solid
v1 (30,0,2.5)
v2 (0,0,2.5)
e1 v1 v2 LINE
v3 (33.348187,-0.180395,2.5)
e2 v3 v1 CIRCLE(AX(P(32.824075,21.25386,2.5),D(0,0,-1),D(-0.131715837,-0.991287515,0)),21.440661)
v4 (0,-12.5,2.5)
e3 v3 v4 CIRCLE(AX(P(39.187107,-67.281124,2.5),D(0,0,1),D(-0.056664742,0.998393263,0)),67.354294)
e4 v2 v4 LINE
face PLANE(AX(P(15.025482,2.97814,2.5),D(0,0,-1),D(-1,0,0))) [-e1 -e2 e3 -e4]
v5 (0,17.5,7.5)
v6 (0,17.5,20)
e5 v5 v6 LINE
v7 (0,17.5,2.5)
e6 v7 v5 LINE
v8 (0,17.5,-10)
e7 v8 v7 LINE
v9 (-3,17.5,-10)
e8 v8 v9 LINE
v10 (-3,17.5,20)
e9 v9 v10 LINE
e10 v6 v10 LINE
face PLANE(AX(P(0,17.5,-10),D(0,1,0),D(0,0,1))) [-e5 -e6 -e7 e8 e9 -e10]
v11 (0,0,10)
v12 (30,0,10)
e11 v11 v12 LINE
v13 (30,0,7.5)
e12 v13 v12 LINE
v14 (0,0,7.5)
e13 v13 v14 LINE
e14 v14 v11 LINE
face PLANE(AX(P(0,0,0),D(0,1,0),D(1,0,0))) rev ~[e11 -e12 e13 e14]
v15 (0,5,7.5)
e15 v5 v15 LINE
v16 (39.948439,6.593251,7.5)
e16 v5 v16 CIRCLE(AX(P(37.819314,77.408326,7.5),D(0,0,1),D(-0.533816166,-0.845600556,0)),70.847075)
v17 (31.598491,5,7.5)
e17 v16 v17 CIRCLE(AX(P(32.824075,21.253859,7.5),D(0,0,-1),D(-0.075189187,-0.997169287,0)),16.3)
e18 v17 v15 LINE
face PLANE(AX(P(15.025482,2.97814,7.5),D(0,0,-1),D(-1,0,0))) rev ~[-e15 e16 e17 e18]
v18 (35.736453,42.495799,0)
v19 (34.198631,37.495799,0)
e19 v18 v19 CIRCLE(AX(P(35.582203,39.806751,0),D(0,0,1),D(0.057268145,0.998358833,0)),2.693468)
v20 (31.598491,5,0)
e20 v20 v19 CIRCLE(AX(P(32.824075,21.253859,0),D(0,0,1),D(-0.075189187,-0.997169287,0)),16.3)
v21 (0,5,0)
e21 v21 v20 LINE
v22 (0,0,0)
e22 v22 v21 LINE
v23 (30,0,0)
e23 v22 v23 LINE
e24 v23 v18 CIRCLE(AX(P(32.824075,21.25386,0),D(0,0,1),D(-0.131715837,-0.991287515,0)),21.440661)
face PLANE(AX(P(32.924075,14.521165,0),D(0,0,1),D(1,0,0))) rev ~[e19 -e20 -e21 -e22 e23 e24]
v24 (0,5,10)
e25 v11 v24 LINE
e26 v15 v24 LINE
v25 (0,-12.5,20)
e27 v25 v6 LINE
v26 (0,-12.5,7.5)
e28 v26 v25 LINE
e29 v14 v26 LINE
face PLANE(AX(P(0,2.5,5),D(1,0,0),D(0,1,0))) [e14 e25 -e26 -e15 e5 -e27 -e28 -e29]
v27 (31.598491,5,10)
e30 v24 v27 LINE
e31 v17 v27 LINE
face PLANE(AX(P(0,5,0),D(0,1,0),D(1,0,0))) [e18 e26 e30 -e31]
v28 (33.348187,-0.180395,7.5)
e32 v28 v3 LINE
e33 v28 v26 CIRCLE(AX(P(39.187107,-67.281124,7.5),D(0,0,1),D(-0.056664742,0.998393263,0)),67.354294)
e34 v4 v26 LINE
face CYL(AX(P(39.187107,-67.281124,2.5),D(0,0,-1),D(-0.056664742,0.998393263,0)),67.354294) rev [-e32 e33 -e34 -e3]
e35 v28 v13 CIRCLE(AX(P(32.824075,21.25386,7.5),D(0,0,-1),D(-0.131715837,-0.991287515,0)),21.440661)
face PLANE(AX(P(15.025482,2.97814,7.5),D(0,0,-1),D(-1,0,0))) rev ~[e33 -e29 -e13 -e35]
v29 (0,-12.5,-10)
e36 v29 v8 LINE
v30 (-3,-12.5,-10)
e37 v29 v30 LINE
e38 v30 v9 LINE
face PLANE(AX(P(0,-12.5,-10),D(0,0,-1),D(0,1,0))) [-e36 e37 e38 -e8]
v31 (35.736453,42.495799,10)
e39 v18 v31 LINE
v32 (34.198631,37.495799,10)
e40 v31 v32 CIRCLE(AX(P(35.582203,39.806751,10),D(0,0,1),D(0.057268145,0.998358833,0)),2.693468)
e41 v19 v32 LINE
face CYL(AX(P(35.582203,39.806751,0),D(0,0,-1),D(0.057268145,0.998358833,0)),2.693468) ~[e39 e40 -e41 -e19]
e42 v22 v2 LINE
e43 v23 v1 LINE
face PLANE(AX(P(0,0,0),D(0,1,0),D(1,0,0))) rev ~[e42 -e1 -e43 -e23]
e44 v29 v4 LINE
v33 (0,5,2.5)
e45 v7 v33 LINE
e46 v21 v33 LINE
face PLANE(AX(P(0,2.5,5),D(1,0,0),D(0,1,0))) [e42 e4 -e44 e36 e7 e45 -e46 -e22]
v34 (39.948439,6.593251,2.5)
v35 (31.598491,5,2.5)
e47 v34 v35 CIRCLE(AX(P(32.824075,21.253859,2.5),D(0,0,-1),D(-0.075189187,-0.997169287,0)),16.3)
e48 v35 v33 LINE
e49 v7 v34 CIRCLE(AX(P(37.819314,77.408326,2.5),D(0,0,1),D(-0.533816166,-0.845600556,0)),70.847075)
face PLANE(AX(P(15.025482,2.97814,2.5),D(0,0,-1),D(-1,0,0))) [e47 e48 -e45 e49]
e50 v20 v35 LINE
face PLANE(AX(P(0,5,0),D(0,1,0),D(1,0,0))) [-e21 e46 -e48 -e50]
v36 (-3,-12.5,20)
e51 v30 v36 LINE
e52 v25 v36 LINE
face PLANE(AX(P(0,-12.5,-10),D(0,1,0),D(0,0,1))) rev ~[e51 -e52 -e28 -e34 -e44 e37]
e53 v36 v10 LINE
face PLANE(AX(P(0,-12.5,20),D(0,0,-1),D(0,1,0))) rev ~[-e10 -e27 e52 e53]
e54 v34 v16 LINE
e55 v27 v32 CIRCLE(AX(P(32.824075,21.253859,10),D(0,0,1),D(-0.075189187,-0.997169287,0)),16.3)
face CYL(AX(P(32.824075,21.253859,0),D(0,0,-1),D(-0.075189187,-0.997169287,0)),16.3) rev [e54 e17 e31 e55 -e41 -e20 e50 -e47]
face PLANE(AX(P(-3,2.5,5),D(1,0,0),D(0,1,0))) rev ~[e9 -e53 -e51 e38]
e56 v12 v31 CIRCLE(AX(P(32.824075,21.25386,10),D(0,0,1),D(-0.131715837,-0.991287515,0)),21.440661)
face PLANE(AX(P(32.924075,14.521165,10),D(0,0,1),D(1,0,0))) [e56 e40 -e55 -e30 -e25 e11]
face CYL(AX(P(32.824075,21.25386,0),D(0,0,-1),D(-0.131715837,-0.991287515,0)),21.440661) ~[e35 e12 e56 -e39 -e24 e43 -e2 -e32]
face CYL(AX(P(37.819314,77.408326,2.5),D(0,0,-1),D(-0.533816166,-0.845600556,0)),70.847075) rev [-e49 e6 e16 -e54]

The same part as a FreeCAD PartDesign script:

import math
import FreeCAD as App
import Part
import Sketcher
from FreeCAD import Vector
Q = App.Units.Quantity

doc = App.newDocument("Part")
body = doc.addObject("PartDesign::Body", "Body")

sketch1 = doc.addObject("Sketcher::SketchObject", "Sketch")
body.addObject(sketch1)
sketch1.AttachmentSupport = (doc.XY_Plane, [""])
sketch1.MapMode = "FlatFace"
sketch1.addGeometry([
    Part.LineSegment(Vector(0, 0, 0), Vector(30, 0, 0)),
    Part.ArcOfCircle(Part.Circle(Vector(32.8, 21.3, 0), Vector(0, 0, 1), 21.4), math.radians(-98), math.radians(82)),
    Part.ArcOfCircle(Part.Circle(Vector(35.6, 39.8, 0), Vector(0, 0, 1), 2.7), math.radians(87), math.radians(239)),
    Part.ArcOfCircle(Part.Circle(Vector(32.8, 21.3, 0), Vector(0, 0, 1), 16.3), math.radians(-94), math.radians(85)),
    Part.LineSegment(Vector(31.6, 5, 0), Vector(0, 5, 0)),
    Part.LineSegment(Vector(0, 5, 0), Vector(0, 0, 0)),
], False)
sketch1.addConstraint([
    Sketcher.Constraint("Coincident", 0, 2, 1, 1),
    Sketcher.Constraint("Coincident", 1, 2, 2, 1),
    Sketcher.Constraint("Coincident", 2, 2, 3, 2),
    Sketcher.Constraint("Coincident", 3, 1, 4, 1),
    Sketcher.Constraint("Coincident", 4, 2, 5, 1),
    Sketcher.Constraint("Coincident", 5, 2, 0, 1),
    Sketcher.Constraint("Horizontal", 0),
    Sketcher.Constraint("Horizontal", 4),
    Sketcher.Constraint("Vertical", 5),
    Sketcher.Constraint("Coincident", 5, 2, -1, 1),
    Sketcher.Constraint("Coincident", 3, 3, 1, 3),
    Sketcher.Constraint("Radius", 3, Q("16.3 mm")),
    Sketcher.Constraint("DistanceX", 0, 1, 0, 2, Q("30 mm")),
    Sketcher.Constraint("DistanceY", 5, 2, 5, 1, Q("5 mm")),
    Sketcher.Constraint("DistanceY", 2, 2, 1, 2, Q("5 mm")),
    Sketcher.Constraint("Radius", 1, Q("21.440661 mm")),
    Sketcher.Constraint("Radius", 2, Q("2.693468 mm")),
    Sketcher.Constraint("DistanceX", 4, 2, 4, 1, Q("31.598491 mm")),
    Sketcher.Constraint("DistanceY", -1, 1, 1, 2, Q("42.495799 mm")),
])
pad1 = doc.addObject("PartDesign::Pad", "Pad")
body.addObject(pad1)
pad1.Profile = sketch1
pad1.Length = 10

sketch2 = doc.addObject("Sketcher::SketchObject", "Sketch001")
body.addObject(sketch2)
sketch2.AttachmentSupport = (doc.YZ_Plane, [""])
sketch2.MapMode = "FlatFace"
sketch2.addGeometry([
    Part.LineSegment(Vector(-12, 20, 0), Vector(-12, -10, 0)),
    Part.LineSegment(Vector(-12, -10, 0), Vector(18, -10, 0)),
    Part.LineSegment(Vector(18, -10, 0), Vector(18, 20, 0)),
    Part.LineSegment(Vector(18, 20, 0), Vector(-12, 20, 0)),
], False)
sketch2.addConstraint([
    Sketcher.Constraint("Coincident", 0, 2, 1, 1),
    Sketcher.Constraint("Coincident", 1, 2, 2, 1),
    Sketcher.Constraint("Coincident", 2, 2, 3, 1),
    Sketcher.Constraint("Coincident", 3, 2, 0, 1),
    Sketcher.Constraint("Vertical", 0),
    Sketcher.Constraint("Horizontal", 1),
    Sketcher.Constraint("Vertical", 2),
    Sketcher.Constraint("Horizontal", 3),
    Sketcher.Constraint("Equal", 3, 0),
    Sketcher.Constraint("DistanceX", 1, 1, 1, 2, Q("30 mm")),
    Sketcher.Constraint("DistanceY", 0, 2, -1, 1, Q("10 mm")),
    Sketcher.Constraint("DistanceX", 0, 2, -1, 1, Q("12.5 mm")),
])
pad2 = doc.addObject("PartDesign::Pad", "Pad001")
body.addObject(pad2)
pad2.Profile = sketch2
pad2.Length = 3
pad2.Reversed = True

sketch3 = doc.addObject("Sketcher::SketchObject", "Sketch002")
body.addObject(sketch3)
sketch3.AttachmentSupport = (doc.XY_Plane, [""])
sketch3.MapMode = "FlatFace"
sketch3.AttachmentOffset = App.Placement(Vector(0, 0, 2.5), App.Rotation())
sketch3.addGeometry([
    Part.ArcOfCircle(Part.Circle(Vector(38, 77, 0), Vector(0, 0, 1), 71), math.radians(-122), math.radians(-88)),
    Part.LineSegment(Vector(0, 18, 0), Vector(0, -12, 0)),
    Part.ArcOfCircle(Part.Circle(Vector(39, -67, 0), Vector(0, 0, 1), 67), math.radians(93), math.radians(126)),
    Part.LineSegment(Vector(35, 0, 0), Vector(40, 7, 0)),
], False)
sketch3.addConstraint([
    Sketcher.Constraint("Coincident", 0, 1, 1, 1),
    Sketcher.Constraint("Coincident", 1, 2, 2, 2),
    Sketcher.Constraint("Coincident", 2, 1, 3, 1),
    Sketcher.Constraint("Coincident", 3, 2, 0, 2),
    Sketcher.Constraint("Vertical", 1),
    Sketcher.Constraint("PointOnObject", 0, 1, -2),
    Sketcher.Constraint("DistanceY", 1, 2, 1, 1, Q("30 mm")),
    Sketcher.Constraint("DistanceY", -1, 1, 0, 1, Q("17.5 mm")),
    Sketcher.Constraint("Radius", 0, Q("70.847075 mm")),
    Sketcher.Constraint("Radius", 2, Q("67.354294 mm")),
    Sketcher.Constraint("DistanceY", 2, 1, -1, 1, Q("0.035051 mm")),
    Sketcher.Constraint("DistanceX", -1, 1, 3, 2, Q("39.948439 mm")),
    Sketcher.Constraint("DistanceY", -1, 1, 3, 2, Q("6.593251 mm")),
    Sketcher.Constraint("DistanceY", 2, 3, 0, 3, Q("144.68945 mm")),
])
pad3 = doc.addObject("PartDesign::Pad", "Pad002")
body.addObject(pad3)
pad3.Profile = sketch3
pad3.Length = 5

doc.recompute()
